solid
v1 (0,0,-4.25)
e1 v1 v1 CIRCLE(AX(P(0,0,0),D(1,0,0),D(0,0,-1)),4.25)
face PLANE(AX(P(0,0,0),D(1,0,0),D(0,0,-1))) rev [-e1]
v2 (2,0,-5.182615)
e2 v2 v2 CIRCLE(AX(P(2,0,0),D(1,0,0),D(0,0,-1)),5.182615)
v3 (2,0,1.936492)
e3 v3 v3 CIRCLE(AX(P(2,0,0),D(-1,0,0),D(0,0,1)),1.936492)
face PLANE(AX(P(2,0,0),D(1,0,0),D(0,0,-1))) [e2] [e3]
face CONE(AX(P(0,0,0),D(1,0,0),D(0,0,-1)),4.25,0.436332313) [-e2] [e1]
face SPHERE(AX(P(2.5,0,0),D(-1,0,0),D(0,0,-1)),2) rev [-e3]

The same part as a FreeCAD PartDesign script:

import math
import FreeCAD as App
import Part
import Sketcher

V = App.Vector
Q = App.Units.Quantity

doc = App.newDocument("Part")
body = doc.addObject("PartDesign::Body", "Body")

# Sketch on YZ plane
sketch1 = doc.addObject("Sketcher::SketchObject", "Sketch")
body.addObject(sketch1)
sketch1.AttachmentSupport = (doc.YZ_Plane, [""])
sketch1.MapMode = "FlatFace"
sketch1.addGeometry(Part.Circle(V(0, 0, 0), V(0, 0, 1), 4.2), False)
sketch1.addConstraint(Sketcher.Constraint("Coincident", 0, 3, -1, 1))
sketch1.addConstraint(Sketcher.Constraint("Diameter", 0, Q("8.5 mm")))
pad1 = doc.addObject("PartDesign::Pad", "Pad")
body.addObject(pad1)
pad1.Profile = sketch1
pad1.Length = 2
pad1.TaperAngle = 25

# Sketch on XZ plane
sketch2 = doc.addObject("Sketcher::SketchObject", "Sketch001")
body.addObject(sketch2)
sketch2.AttachmentSupport = (doc.XZ_Plane, [""])
sketch2.MapMode = "FlatFace"
sketch2.addGeometry(Part.LineSegment(V(0.5, 0, 0), V(2, 0, 0)), False)
sketch2.addGeometry(Part.LineSegment(V(2, 0, 0), V(2, -1.9, 0)), False)
sketch2.addGeometry(Part.ArcOfCircle(Part.Circle(V(2.5, 0, 0), V(0, 0, 1), 2), math.radians(-180), math.radians(-104)), False)
sketch2.addConstraint(Sketcher.Constraint("Coincident", 0, 2, 1, 1))
sketch2.addConstraint(Sketcher.Constraint("Coincident", 1, 2, 2, 2))
sketch2.addConstraint(Sketcher.Constraint("Coincident", 2, 1, 0, 1))
sketch2.addConstraint(Sketcher.Constraint("Horizontal", 0))
sketch2.addConstraint(Sketcher.Constraint("Vertical", 1))
sketch2.addConstraint(Sketcher.Constraint("PointOnObject", 2, 3, -1))
sketch2.addConstraint(Sketcher.Constraint("PointOnObject", 0, 2, -1))
sketch2.addConstraint(Sketcher.Constraint("Radius", 2, Q("2 mm")))
sketch2.addConstraint(Sketcher.Constraint("DistanceX", 0, 1, 0, 2, Q("1.5 mm")))
sketch2.addConstraint(Sketcher.Constraint("DistanceX", -1, 1, 0, 2, Q("2 mm")))
groove = doc.addObject("PartDesign::Groove", "Groove")
body.addObject(groove)
groove.Profile = sketch2
groove.ReferenceAxis = (sketch2, ["H_Axis"])
groove.Angle = 360

doc.recompute()
